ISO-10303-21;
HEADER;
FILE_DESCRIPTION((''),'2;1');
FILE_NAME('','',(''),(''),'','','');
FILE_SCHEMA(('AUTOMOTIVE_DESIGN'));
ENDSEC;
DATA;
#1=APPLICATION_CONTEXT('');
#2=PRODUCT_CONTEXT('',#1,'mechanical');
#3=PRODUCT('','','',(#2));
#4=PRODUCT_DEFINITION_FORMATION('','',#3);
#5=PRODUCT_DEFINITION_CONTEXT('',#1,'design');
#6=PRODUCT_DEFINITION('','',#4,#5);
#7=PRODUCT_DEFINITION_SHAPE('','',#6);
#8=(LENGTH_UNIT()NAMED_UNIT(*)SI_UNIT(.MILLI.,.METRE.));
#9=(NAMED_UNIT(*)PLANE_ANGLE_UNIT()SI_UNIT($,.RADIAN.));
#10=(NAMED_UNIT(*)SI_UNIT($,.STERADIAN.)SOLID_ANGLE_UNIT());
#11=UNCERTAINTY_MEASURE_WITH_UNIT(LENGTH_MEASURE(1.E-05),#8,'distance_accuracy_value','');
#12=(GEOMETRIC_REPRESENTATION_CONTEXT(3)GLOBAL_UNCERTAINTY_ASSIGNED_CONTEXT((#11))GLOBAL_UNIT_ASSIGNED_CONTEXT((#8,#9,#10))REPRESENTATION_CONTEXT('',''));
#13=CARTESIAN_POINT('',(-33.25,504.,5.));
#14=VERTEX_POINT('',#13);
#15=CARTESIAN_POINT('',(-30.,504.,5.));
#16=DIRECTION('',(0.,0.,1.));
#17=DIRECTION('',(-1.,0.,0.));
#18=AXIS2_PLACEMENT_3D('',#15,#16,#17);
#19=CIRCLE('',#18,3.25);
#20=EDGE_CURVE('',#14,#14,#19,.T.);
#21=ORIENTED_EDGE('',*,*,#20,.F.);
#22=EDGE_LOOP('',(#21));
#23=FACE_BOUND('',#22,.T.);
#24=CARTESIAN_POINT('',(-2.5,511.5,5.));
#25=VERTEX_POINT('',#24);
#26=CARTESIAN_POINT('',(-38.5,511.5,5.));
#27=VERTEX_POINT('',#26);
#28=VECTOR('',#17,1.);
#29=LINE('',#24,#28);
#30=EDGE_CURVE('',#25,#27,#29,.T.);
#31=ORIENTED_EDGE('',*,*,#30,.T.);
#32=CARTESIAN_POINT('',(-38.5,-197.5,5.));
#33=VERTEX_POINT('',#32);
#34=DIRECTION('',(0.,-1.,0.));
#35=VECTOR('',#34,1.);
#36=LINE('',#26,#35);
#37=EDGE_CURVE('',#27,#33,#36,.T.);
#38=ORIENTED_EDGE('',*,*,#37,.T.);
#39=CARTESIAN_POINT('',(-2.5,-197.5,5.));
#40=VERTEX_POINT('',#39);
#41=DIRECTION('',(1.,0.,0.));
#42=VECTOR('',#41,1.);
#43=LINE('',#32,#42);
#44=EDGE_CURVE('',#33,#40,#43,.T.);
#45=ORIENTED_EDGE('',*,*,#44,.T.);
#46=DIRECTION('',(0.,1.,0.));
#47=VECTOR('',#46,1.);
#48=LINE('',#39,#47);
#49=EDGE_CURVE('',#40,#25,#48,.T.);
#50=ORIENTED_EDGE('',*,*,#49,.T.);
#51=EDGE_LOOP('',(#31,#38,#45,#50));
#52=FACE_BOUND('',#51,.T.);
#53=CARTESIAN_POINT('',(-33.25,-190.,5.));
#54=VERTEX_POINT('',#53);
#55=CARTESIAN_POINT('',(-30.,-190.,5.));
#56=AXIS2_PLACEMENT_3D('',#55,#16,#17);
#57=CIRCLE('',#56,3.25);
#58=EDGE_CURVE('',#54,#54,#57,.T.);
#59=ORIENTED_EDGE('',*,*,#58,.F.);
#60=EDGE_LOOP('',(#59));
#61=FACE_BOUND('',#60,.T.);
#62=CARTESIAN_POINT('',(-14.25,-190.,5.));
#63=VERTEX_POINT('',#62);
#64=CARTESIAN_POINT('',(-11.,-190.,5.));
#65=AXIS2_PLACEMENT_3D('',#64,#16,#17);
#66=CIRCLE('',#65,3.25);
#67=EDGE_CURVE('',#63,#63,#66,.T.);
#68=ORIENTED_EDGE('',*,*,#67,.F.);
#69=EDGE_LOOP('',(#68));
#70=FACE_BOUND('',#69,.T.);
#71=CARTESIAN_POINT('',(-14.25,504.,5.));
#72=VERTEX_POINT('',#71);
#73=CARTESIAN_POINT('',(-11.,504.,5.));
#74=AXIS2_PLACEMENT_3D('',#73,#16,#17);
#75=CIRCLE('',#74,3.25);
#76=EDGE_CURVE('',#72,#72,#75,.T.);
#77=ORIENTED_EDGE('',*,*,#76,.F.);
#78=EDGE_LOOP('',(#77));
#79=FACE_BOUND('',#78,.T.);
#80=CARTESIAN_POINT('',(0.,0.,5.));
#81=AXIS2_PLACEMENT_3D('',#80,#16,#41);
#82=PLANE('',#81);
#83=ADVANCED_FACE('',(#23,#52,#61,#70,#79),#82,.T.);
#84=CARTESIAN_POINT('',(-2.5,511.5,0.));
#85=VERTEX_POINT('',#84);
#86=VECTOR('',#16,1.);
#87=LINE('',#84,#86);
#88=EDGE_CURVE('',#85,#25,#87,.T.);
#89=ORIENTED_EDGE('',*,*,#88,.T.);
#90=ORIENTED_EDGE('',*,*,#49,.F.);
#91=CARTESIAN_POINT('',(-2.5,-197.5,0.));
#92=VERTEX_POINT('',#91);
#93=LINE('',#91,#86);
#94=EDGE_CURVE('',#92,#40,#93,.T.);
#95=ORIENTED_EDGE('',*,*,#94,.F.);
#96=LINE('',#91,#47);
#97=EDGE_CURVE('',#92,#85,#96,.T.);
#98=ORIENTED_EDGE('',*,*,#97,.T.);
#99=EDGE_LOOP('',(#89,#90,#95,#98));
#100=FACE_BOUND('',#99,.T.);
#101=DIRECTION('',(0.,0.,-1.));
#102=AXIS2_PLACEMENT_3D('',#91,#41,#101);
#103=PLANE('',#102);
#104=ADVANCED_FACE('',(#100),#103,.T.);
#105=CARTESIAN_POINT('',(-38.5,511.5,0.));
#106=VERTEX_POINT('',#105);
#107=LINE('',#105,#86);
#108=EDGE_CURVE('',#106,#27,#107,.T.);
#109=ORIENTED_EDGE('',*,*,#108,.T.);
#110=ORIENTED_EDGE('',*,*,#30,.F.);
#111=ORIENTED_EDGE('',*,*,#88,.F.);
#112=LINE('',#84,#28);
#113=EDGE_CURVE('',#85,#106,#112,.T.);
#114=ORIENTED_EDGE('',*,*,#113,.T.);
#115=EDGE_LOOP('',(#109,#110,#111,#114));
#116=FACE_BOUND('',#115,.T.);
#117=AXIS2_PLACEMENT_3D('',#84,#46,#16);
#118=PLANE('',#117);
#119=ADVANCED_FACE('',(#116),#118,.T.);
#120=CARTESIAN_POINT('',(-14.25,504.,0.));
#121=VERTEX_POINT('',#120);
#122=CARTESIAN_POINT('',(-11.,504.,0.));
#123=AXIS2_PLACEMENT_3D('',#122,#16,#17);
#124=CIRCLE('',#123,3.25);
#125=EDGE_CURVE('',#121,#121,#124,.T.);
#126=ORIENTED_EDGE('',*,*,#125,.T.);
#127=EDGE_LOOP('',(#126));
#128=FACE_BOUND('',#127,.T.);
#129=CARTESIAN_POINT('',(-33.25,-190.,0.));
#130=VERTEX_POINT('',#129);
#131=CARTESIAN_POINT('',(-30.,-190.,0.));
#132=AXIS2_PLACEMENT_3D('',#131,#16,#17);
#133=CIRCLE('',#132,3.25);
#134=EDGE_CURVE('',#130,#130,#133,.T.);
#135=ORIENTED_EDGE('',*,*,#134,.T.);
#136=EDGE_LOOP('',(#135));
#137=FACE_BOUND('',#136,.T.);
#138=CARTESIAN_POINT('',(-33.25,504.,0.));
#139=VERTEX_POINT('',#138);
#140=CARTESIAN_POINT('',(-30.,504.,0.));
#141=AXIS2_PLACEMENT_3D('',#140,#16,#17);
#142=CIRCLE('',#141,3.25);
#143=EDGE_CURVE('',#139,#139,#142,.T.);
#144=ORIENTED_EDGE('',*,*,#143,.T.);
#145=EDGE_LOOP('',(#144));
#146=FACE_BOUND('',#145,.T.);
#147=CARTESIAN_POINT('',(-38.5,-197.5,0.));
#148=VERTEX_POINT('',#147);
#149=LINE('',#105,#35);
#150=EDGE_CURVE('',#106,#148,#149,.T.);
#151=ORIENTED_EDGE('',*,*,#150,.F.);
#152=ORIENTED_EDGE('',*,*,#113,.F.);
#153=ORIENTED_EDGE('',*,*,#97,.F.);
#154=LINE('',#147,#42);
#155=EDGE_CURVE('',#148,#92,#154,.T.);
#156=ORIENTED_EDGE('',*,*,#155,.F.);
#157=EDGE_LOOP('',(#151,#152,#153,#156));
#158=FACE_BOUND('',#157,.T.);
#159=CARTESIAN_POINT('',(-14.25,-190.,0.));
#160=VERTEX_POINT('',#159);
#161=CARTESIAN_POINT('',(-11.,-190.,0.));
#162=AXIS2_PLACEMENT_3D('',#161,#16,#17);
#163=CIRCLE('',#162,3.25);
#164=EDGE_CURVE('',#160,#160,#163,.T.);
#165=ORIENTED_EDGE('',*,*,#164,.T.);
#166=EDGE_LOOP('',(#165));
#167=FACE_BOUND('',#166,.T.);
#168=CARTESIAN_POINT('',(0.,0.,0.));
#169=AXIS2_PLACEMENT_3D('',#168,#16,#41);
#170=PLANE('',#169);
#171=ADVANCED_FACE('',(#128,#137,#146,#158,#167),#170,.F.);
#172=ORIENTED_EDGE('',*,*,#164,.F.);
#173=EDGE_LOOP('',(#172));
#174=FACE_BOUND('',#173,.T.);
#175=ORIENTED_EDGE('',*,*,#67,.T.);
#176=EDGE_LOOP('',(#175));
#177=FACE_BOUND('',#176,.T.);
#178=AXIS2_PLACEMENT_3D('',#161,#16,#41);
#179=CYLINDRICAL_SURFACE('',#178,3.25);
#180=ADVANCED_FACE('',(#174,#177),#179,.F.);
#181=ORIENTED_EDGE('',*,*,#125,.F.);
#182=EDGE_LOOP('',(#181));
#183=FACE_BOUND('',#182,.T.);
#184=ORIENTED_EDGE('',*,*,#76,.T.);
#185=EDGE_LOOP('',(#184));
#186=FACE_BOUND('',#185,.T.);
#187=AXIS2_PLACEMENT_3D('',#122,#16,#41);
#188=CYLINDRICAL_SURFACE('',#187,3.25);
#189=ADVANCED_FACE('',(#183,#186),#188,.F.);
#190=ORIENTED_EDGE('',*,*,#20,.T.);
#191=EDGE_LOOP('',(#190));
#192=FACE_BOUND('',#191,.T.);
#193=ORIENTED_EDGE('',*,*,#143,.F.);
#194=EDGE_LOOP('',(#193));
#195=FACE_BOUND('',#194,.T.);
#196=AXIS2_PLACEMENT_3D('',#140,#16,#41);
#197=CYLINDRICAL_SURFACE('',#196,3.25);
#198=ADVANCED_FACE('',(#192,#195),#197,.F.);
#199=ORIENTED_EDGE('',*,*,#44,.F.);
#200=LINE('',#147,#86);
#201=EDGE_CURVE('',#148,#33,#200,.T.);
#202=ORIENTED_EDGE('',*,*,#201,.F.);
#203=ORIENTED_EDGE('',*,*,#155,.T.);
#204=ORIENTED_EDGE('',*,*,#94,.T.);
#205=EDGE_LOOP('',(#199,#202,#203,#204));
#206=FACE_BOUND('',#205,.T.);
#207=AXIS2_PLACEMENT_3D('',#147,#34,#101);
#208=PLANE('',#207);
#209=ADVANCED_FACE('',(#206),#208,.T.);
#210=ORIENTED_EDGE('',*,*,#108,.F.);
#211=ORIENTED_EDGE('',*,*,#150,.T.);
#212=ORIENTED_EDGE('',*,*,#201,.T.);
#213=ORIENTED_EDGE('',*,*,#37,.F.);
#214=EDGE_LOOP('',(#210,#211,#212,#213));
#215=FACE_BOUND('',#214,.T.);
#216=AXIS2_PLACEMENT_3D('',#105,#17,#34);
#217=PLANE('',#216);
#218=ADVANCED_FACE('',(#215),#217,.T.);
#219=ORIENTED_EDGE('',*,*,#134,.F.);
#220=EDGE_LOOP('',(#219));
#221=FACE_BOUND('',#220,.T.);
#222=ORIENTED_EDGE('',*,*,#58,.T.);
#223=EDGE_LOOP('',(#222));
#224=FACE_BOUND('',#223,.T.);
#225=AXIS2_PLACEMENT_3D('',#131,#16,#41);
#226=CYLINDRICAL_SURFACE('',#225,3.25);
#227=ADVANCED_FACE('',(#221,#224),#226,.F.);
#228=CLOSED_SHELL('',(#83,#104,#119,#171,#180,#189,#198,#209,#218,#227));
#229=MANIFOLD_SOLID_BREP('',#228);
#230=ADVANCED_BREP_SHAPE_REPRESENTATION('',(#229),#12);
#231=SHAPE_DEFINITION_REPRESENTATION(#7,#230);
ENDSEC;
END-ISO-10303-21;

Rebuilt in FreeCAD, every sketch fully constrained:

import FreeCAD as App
import Part
import Sketcher

V = App.Vector
Q = App.Units.Quantity

doc = App.newDocument("Part")
body = doc.addObject("PartDesign::Body", "Body")

sketch1 = doc.addObject("Sketcher::SketchObject", "Sketch")
body.addObject(sketch1)
sketch1.AttachmentSupport = (doc.XY_Plane, [""])
sketch1.MapMode = "FlatFace"
sketch1.AttachmentOffset = App.Placement(V(0, 0, 5), App.Rotation())
sketch1.addGeometry(Part.LineSegment(V(-38.5, 511.5, 0), V(-38.5, -197.5, 0)), False)
sketch1.addGeometry(Part.LineSegment(V(-38.5, -197.5, 0), V(-2.5, -197.5, 0)), False)
sketch1.addGeometry(Part.LineSegment(V(-2.5, -197.5, 0), V(-2.5, 511.5, 0)), False)
sketch1.addGeometry(Part.LineSegment(V(-2.5, 511.5, 0), V(-38.5, 511.5, 0)), False)
sketch1.addGeometry(Part.Circle(V(-30, -190, 0), V(0, 0, 1), 3.25), False)
sketch1.addGeometry(Part.Circle(V(-11, -190, 0), V(0, 0, 1), 3.25), False)
sketch1.addGeometry(Part.Circle(V(-30, 504, 0), V(0, 0, 1), 3.25), False)
sketch1.addGeometry(Part.Circle(V(-11, 504, 0), V(0, 0, 1), 3.25), False)
sketch1.addConstraint(Sketcher.Constraint("Coincident", 0, 2, 1, 1))
sketch1.addConstraint(Sketcher.Constraint("Coincident", 1, 2, 2, 1))
sketch1.addConstraint(Sketcher.Constraint("Coincident", 2, 2, 3, 1))
sketch1.addConstraint(Sketcher.Constraint("Coincident", 3, 2, 0, 1))
sketch1.addConstraint(Sketcher.Constraint("Vertical", 0))
sketch1.addConstraint(Sketcher.Constraint("Horizontal", 1))
sketch1.addConstraint(Sketcher.Constraint("Vertical", 2))
sketch1.addConstraint(Sketcher.Constraint("Horizontal", 3))
sketch1.addConstraint(Sketcher.Constraint("Equal", 4, 5))
sketch1.addConstraint(Sketcher.Constraint("Equal", 5, 6))
sketch1.addConstraint(Sketcher.Constraint("Equal", 6, 7))
sketch1.addConstraint(Sketcher.Constraint("Horizontal", 4, 3, 5, 3))
sketch1.addConstraint(Sketcher.Constraint("Horizontal", 6, 3, 7, 3))
sketch1.addConstraint(Sketcher.Constraint("Vertical", 4, 3, 6, 3))
sketch1.addConstraint(Sketcher.Constraint("Vertical", 5, 3, 7, 3))
sketch1.addConstraint(Sketcher.Constraint("Diameter", 4, Q("6.5 mm")))
sketch1.addConstraint(Sketcher.Constraint("DistanceX", 1, 1, 1, 2, Q("36 mm")))
sketch1.addConstraint(Sketcher.Constraint("DistanceY", 0, 2, 0, 1, Q("709 mm")))
sketch1.addConstraint(Sketcher.Constraint("DistanceX", 4, 3, -1, 1, Q("30 mm")))
sketch1.addConstraint(Sketcher.Constraint("DistanceY", 4, 3, -1, 1, Q("190 mm")))
sketch1.addConstraint(Sketcher.Constraint("DistanceX", 5, 3, -1, 1, Q("11 mm")))
sketch1.addConstraint(Sketcher.Constraint("DistanceY", -1, 1, 6, 3, Q("504 mm")))
sketch1.addConstraint(Sketcher.Constraint("DistanceX", 0, 2, -1, 1, Q("38.5 mm")))
sketch1.addConstraint(Sketcher.Constraint("DistanceY", 0, 2, -1, 1, Q("197.5 mm")))
pad1 = doc.addObject("PartDesign::Pad", "Pad")
body.addObject(pad1)
pad1.Profile = sketch1
pad1.Length = 5
pad1.Reversed = True

doc.recompute()
